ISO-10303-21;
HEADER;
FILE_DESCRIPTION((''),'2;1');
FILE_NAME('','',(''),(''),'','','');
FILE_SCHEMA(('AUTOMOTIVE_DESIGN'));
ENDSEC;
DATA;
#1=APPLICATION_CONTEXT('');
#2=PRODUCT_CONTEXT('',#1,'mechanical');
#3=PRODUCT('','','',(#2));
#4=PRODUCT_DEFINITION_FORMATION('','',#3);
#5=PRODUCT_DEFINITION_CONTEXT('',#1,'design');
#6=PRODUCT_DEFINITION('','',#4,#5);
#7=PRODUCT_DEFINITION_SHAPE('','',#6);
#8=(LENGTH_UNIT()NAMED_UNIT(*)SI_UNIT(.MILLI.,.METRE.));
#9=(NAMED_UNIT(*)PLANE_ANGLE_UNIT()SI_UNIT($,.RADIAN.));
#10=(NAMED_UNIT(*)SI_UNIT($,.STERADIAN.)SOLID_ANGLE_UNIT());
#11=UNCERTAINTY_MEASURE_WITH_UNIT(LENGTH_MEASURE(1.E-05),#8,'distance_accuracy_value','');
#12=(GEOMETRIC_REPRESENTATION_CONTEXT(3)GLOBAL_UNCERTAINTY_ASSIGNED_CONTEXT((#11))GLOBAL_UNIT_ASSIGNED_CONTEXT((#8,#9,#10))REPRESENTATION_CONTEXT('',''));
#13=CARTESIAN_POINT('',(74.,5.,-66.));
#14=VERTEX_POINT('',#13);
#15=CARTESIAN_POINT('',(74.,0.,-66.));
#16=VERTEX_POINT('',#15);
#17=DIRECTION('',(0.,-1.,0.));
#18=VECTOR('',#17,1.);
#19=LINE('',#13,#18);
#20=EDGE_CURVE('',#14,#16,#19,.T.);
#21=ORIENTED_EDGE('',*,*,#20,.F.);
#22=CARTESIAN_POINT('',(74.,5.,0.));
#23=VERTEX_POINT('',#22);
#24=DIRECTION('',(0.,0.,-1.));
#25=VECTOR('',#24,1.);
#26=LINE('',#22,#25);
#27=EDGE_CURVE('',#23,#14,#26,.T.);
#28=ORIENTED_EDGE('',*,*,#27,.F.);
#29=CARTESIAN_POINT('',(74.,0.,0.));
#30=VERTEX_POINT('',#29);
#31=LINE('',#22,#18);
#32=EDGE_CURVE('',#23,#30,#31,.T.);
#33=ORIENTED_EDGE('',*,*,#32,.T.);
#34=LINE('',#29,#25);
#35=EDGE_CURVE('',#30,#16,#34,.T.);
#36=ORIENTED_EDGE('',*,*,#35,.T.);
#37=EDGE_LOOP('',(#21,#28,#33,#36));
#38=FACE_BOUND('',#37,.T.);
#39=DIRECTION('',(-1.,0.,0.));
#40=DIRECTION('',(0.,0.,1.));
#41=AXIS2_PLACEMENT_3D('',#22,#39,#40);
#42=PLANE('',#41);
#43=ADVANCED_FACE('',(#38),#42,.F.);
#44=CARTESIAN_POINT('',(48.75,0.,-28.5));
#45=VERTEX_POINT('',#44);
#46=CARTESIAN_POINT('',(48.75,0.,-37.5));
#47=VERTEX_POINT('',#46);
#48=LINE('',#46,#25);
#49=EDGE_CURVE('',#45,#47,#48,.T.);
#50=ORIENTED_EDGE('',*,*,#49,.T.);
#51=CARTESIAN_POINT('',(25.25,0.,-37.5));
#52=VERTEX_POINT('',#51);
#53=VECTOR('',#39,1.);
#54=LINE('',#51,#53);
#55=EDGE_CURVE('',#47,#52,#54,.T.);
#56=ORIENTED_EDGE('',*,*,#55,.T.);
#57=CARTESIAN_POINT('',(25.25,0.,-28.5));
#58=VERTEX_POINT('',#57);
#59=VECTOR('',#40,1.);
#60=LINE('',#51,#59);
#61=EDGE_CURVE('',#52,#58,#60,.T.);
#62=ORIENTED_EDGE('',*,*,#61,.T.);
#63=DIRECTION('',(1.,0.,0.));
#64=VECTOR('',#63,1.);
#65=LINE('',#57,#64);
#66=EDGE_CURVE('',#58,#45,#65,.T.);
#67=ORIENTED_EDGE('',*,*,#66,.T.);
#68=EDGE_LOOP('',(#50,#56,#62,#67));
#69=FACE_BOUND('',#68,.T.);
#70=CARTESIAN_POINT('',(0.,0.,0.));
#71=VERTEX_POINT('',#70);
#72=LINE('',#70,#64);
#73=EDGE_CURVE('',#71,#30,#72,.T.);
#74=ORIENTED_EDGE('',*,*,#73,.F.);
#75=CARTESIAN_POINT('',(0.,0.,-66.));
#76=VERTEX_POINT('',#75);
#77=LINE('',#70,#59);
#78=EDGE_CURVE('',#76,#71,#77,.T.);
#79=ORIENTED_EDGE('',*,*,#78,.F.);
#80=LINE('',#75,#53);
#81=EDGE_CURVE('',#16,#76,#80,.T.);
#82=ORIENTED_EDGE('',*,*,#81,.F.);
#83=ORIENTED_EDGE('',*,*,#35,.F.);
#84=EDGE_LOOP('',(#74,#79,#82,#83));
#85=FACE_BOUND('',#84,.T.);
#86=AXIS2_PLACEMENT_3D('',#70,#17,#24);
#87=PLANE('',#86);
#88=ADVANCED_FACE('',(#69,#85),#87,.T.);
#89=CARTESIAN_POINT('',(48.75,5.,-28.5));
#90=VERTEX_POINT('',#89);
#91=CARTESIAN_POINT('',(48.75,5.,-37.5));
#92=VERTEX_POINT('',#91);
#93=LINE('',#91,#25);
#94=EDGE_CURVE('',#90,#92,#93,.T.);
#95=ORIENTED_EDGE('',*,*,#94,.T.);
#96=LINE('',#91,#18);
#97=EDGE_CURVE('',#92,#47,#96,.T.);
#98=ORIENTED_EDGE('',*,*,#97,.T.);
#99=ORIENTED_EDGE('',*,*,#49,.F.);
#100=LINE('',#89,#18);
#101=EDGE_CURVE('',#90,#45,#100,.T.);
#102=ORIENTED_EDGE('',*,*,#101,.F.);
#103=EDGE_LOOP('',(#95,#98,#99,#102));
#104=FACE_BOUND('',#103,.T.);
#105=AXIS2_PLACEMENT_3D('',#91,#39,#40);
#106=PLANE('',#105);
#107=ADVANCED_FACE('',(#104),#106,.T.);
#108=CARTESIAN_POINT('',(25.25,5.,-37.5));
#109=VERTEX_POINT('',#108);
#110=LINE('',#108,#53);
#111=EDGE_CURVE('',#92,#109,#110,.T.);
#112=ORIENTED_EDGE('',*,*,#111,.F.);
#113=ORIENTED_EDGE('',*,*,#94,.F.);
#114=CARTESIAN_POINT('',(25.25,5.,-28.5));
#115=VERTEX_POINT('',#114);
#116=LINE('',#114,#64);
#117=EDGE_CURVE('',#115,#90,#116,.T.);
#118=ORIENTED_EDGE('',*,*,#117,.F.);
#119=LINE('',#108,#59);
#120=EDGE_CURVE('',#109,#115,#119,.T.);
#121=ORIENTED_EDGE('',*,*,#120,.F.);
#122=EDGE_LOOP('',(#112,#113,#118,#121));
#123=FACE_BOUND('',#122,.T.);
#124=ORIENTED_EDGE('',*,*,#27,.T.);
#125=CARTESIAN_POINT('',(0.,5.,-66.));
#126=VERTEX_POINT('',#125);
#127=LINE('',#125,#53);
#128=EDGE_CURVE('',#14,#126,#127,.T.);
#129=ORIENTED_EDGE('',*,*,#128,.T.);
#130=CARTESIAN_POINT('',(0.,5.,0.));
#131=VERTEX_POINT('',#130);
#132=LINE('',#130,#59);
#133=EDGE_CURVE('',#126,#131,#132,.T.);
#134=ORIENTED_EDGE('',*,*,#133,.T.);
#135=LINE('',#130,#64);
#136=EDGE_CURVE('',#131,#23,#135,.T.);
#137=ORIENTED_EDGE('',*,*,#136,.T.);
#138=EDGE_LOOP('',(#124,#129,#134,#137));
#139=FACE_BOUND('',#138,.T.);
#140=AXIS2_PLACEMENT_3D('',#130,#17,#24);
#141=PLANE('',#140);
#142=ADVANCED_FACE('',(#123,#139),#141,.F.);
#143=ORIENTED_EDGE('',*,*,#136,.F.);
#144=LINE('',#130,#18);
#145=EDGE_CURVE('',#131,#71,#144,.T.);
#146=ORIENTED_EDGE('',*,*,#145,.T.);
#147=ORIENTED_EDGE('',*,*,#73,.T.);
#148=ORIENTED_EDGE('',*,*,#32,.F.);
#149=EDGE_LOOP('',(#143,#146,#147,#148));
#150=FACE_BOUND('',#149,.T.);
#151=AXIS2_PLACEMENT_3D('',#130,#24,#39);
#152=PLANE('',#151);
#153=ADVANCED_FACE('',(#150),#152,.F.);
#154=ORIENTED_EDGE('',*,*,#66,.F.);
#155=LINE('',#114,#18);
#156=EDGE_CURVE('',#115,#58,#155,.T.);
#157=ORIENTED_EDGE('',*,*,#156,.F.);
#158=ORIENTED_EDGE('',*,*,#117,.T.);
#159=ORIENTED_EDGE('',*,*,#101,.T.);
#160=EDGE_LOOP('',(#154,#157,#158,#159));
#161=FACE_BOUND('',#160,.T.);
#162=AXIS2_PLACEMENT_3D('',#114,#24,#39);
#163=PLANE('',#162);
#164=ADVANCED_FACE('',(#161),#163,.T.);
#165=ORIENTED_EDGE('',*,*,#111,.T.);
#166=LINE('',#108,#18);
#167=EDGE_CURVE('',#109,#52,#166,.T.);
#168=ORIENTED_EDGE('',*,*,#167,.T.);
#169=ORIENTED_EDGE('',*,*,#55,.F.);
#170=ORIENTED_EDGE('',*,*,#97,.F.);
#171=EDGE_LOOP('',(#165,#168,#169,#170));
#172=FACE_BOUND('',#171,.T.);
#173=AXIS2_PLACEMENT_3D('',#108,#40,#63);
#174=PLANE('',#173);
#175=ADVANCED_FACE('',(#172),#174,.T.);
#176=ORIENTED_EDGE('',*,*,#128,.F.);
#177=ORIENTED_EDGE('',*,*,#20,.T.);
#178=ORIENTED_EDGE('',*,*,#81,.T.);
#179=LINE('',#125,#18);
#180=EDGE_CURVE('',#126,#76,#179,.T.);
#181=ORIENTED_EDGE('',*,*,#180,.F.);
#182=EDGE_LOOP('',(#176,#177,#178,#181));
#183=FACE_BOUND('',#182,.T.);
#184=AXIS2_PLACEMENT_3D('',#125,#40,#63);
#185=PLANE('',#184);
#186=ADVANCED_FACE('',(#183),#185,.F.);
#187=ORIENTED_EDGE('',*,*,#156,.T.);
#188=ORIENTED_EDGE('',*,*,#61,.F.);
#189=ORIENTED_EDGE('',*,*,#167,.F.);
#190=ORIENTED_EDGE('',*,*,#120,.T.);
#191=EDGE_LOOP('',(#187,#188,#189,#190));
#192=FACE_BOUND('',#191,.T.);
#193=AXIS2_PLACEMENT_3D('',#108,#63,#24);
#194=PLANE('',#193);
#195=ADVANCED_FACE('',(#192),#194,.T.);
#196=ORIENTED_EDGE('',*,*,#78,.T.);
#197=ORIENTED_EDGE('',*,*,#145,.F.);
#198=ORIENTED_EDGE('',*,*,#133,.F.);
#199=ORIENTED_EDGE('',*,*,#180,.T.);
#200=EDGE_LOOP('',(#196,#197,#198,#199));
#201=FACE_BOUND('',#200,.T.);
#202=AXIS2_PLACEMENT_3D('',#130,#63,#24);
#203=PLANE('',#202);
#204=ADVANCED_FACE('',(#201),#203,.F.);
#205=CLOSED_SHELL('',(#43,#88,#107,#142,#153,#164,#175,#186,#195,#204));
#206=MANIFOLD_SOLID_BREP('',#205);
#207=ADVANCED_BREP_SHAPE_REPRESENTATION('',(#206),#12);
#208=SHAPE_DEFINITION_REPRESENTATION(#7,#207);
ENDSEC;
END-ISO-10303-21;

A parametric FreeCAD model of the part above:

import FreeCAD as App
import Part
import Sketcher
Q = App.Units.Quantity

doc = App.newDocument("Part")
body = doc.addObject("PartDesign::Body", "Body")

sketch1 = body.newObject("Sketcher::SketchObject", "Sketch")
sketch1.AttachmentSupport = (doc.getObject("XZ_Plane"), [""])
sketch1.MapMode = "FlatFace"
sketch1.addGeometry(Part.LineSegment(App.Vector(0, -66, 0), App.Vector(0, 0, 0)), False)
sketch1.addGeometry(Part.LineSegment(App.Vector(0, 0, 0), App.Vector(74, 0, 0)), False)
sketch1.addGeometry(Part.LineSegment(App.Vector(74, 0, 0), App.Vector(74, -66, 0)), False)
sketch1.addGeometry(Part.LineSegment(App.Vector(74, -66, 0), App.Vector(0, -66, 0)), False)
sketch1.addGeometry(Part.LineSegment(App.Vector(49, -28, 0), App.Vector(25, -28, 0)), False)
sketch1.addGeometry(Part.LineSegment(App.Vector(25, -28, 0), App.Vector(25, -38, 0)), False)
sketch1.addGeometry(Part.LineSegment(App.Vector(25, -38, 0), App.Vector(49, -38, 0)), False)
sketch1.addGeometry(Part.LineSegment(App.Vector(49, -38, 0), App.Vector(49, -28, 0)), False)
sketch1.addConstraint(Sketcher.Constraint("Coincident", 0, 2, 1, 1))
sketch1.addConstraint(Sketcher.Constraint("Coincident", 1, 2, 2, 1))
sketch1.addConstraint(Sketcher.Constraint("Coincident", 2, 2, 3, 1))
sketch1.addConstraint(Sketcher.Constraint("Coincident", 3, 2, 0, 1))
sketch1.addConstraint(Sketcher.Constraint("Coincident", 4, 2, 5, 1))
sketch1.addConstraint(Sketcher.Constraint("Coincident", 5, 2, 6, 1))
sketch1.addConstraint(Sketcher.Constraint("Coincident", 6, 2, 7, 1))
sketch1.addConstraint(Sketcher.Constraint("Coincident", 7, 2, 4, 1))
sketch1.addConstraint(Sketcher.Constraint("Vertical", 0))
sketch1.addConstraint(Sketcher.Constraint("Horizontal", 1))
sketch1.addConstraint(Sketcher.Constraint("Vertical", 2))
sketch1.addConstraint(Sketcher.Constraint("Horizontal", 3))
sketch1.addConstraint(Sketcher.Constraint("Horizontal", 4))
sketch1.addConstraint(Sketcher.Constraint("Vertical", 5))
sketch1.addConstraint(Sketcher.Constraint("Horizontal", 6))
sketch1.addConstraint(Sketcher.Constraint("Vertical", 7))
sketch1.addConstraint(Sketcher.Constraint("Coincident", 0, 2, -1, 1))
sketch1.addConstraint(Sketcher.Constraint("DistanceX", 1, 1, 1, 2, Q("74 mm")))
sketch1.addConstraint(Sketcher.Constraint("DistanceY", 0, 1, 0, 2, Q("66 mm")))
sketch1.addConstraint(Sketcher.Constraint("DistanceY", 5, 2, 5, 1, Q("9 mm")))
sketch1.addConstraint(Sketcher.Constraint("DistanceX", 4, 2, 4, 1, Q("23.5 mm")))
sketch1.addConstraint(Sketcher.Constraint("DistanceY", 4, 2, -1, 1, Q("28.5 mm")))
sketch1.addConstraint(Sketcher.Constraint("DistanceX", -1, 1, 4, 2, Q("25.25 mm")))
pad1 = body.newObject("PartDesign::Pad", "Pad")
pad1.Profile = sketch1
pad1.Length = 5
pad1.Reversed = True

doc.recompute()
